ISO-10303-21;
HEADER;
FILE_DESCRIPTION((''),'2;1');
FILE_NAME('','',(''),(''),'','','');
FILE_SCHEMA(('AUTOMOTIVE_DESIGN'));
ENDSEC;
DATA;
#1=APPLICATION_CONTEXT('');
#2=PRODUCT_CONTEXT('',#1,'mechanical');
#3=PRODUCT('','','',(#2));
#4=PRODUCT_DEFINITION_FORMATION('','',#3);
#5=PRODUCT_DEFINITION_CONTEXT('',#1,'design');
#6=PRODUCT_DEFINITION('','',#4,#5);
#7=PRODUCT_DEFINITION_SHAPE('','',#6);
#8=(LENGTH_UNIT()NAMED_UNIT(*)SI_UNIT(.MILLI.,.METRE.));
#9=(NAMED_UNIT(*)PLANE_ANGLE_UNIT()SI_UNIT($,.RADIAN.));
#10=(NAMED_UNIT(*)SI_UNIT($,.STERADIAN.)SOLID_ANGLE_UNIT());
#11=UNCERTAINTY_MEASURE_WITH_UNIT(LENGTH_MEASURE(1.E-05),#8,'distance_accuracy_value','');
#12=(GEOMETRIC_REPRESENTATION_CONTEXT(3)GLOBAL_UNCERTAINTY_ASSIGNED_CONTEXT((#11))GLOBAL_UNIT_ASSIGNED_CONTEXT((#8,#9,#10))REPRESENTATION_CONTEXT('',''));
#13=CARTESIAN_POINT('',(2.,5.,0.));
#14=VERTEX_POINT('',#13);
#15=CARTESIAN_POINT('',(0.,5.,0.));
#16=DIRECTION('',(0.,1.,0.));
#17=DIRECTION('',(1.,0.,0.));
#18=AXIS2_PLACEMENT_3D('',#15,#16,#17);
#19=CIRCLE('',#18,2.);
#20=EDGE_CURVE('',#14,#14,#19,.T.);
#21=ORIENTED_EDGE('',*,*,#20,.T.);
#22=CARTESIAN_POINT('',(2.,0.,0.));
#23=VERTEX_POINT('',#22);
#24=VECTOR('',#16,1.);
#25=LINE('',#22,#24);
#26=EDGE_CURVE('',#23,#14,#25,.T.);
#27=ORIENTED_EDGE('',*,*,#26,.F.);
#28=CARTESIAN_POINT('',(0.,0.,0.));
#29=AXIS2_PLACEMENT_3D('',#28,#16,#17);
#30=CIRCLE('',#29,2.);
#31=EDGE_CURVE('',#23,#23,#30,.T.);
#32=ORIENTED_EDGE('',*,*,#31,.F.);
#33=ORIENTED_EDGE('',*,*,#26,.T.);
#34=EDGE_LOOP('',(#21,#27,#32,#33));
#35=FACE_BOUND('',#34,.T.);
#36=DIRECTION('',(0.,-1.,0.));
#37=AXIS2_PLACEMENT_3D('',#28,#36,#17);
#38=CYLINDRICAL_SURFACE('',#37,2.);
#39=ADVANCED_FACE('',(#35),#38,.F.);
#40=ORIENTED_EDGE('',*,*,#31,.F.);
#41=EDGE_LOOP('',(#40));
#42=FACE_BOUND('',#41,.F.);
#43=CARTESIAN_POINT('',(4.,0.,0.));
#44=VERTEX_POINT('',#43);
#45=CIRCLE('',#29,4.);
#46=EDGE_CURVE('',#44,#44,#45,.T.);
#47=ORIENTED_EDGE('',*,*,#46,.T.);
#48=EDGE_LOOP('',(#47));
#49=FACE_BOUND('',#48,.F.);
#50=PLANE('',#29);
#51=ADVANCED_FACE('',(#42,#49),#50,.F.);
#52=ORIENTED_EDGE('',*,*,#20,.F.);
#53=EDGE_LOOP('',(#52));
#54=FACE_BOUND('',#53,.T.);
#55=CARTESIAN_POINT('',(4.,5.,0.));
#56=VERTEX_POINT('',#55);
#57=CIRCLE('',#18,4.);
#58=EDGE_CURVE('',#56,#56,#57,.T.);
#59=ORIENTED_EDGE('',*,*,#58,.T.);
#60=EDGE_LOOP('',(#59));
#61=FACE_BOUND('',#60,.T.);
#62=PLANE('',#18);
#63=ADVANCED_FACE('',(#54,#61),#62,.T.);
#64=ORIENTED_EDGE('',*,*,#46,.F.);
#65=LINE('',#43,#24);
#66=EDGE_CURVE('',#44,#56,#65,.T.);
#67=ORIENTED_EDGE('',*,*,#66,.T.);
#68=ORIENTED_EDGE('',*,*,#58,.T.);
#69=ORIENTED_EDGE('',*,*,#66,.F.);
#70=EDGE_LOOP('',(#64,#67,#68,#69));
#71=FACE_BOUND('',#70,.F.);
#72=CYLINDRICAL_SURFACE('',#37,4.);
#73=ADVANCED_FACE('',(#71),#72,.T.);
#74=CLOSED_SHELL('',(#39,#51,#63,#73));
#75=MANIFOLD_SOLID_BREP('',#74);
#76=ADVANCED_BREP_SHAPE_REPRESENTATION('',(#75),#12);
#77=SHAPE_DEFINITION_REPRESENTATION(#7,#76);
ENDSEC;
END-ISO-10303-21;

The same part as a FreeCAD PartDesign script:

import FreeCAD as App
import Part
import Sketcher
from FreeCAD import Vector
Q = App.Units.Quantity

doc = App.newDocument("Part")
body = doc.addObject("PartDesign::Body", "Body")

# Sketch on XZ plane
sketch1 = doc.addObject("Sketcher::SketchObject", "Sketch")
body.addObject(sketch1)
sketch1.AttachmentSupport = (doc.XZ_Plane, [""])
sketch1.MapMode = "FlatFace"
sketch1.addGeometry([
    Part.Circle(Vector(0, 0, 0), Vector(0, 0, 1), 4),
    Part.Circle(Vector(0, 0, 0), Vector(0, 0, 1), 2),
], False)
sketch1.addConstraint([
    Sketcher.Constraint("Coincident", 0, 3, -1, 1),
    Sketcher.Constraint("Coincident", 1, 3, -1, 1),
    Sketcher.Constraint("Diameter", 0, Q("8 mm")),
    Sketcher.Constraint("Diameter", 1, Q("4 mm")),
])
pad1 = doc.addObject("PartDesign::Pad", "Pad")
body.addObject(pad1)
pad1.Profile = sketch1
pad1.Length = 5
pad1.Reversed = True

doc.recompute()
